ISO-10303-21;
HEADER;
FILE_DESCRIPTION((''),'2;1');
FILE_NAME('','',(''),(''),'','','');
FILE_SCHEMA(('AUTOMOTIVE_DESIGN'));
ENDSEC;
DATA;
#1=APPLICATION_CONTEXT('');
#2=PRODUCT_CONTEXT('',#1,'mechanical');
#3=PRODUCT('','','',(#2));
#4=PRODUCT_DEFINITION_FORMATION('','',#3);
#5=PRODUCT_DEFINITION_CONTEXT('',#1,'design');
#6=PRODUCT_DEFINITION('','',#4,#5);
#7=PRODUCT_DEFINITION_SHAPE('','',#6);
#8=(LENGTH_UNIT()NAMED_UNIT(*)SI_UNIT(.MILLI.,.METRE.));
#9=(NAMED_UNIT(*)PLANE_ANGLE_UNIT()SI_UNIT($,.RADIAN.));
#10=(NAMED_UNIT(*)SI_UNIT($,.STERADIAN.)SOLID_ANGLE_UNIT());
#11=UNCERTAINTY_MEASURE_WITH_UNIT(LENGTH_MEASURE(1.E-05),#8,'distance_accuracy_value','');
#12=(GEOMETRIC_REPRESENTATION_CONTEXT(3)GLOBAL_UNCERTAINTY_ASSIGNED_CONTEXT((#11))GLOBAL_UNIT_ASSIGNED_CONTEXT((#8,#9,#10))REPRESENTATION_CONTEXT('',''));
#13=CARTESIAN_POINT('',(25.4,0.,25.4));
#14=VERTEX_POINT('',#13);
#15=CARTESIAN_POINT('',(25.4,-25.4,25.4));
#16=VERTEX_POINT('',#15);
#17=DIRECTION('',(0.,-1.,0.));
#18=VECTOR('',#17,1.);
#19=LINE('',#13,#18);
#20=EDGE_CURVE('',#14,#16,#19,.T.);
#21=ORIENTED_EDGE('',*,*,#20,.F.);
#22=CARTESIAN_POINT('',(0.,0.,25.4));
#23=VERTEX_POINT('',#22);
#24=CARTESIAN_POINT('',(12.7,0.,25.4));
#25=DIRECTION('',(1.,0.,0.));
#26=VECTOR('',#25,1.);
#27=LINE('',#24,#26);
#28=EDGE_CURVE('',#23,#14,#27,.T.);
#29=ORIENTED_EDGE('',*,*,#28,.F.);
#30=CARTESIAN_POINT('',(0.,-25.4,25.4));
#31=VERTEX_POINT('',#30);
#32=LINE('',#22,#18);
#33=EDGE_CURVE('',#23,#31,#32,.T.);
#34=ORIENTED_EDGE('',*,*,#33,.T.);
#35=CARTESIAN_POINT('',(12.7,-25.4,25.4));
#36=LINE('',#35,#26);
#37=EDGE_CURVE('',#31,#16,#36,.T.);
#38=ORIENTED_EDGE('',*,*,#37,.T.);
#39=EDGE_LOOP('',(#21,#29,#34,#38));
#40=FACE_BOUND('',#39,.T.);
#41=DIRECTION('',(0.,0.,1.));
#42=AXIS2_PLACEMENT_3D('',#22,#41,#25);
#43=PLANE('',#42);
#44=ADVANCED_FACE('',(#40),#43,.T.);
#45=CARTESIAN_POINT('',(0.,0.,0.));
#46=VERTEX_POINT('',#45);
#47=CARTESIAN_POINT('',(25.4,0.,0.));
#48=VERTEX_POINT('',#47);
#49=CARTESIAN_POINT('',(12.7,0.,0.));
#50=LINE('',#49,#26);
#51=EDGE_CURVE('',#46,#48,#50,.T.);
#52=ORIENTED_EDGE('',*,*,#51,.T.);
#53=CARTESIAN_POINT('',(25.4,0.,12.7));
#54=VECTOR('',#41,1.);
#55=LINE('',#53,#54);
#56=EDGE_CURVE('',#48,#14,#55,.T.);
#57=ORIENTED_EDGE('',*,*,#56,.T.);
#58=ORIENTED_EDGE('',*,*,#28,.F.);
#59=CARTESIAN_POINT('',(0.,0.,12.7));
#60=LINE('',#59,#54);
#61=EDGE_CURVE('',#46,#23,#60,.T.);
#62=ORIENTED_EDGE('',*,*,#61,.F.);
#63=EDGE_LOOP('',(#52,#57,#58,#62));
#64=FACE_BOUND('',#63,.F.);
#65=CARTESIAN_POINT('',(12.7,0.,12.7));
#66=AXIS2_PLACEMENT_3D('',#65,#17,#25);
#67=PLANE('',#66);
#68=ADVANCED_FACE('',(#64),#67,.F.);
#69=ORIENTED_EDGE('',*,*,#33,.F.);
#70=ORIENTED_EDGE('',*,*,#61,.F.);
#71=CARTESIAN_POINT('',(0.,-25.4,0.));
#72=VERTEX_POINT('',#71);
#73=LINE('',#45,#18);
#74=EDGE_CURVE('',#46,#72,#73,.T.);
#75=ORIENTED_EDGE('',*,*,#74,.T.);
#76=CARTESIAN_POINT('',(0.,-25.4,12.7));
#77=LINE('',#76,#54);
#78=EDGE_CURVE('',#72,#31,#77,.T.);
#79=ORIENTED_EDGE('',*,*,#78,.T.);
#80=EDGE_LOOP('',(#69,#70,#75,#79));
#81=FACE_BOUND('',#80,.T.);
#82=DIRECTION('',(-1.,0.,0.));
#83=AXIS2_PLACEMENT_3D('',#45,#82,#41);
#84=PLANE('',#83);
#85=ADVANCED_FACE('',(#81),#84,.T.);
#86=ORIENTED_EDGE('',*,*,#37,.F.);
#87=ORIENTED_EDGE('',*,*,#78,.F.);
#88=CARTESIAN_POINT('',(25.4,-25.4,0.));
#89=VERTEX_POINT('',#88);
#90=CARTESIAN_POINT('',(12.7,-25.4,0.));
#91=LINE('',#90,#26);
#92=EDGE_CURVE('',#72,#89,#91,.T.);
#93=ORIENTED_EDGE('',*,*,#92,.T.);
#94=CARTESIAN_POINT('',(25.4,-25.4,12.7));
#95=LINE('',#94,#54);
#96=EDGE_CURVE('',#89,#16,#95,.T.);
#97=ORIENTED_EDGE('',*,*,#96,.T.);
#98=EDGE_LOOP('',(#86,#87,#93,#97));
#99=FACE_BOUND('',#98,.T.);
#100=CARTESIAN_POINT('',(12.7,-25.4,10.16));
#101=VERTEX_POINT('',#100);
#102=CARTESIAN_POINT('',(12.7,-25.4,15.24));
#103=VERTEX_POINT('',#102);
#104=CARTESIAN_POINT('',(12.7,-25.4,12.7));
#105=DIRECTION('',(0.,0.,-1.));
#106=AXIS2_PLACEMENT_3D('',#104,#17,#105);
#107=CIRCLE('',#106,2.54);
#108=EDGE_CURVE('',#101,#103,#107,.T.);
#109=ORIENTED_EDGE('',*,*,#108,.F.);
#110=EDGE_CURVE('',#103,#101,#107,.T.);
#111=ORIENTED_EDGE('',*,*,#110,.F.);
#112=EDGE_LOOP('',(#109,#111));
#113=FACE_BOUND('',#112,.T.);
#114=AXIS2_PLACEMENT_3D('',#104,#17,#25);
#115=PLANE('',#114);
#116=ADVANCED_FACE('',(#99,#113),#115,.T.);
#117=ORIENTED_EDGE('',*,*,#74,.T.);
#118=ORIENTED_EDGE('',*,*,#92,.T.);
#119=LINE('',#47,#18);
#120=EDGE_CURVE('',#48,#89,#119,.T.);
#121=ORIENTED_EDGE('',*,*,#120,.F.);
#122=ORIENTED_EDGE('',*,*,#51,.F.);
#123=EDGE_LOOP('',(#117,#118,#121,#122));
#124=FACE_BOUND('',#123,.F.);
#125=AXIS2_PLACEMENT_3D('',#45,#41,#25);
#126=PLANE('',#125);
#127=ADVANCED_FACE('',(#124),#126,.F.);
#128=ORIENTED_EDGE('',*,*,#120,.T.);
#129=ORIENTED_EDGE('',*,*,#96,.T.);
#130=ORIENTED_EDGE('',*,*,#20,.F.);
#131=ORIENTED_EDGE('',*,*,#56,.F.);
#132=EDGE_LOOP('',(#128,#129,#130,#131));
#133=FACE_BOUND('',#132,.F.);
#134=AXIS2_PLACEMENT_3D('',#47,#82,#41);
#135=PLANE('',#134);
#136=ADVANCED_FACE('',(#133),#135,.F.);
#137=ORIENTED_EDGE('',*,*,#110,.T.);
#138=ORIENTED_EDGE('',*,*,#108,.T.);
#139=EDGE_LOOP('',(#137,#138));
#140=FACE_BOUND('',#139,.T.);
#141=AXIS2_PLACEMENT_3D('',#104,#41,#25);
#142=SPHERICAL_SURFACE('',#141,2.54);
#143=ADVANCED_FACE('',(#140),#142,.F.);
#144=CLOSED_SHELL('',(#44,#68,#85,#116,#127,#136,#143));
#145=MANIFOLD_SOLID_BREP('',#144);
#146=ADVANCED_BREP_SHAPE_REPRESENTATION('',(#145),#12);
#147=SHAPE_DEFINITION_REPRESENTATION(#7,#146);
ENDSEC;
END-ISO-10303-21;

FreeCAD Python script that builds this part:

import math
import FreeCAD as App
import Part
import Sketcher
Q = App.Units.Quantity


def add_polygon(sketch, points):
    """Adds a closed chain of lines whose ends are joined by coincident constraints."""
    first, n = sketch.GeometryCount, len(points)
    for a, b in zip(points, points[1:] + points[:1]):
        sketch.addGeometry(Part.LineSegment(App.Vector(*a, 0), App.Vector(*b, 0)), False)
    for i in range(n):
        sketch.addConstraint(Sketcher.Constraint("Coincident", first + i, 2, first + (i + 1) % n, 1))

doc = App.newDocument("Part")
body = doc.addObject("PartDesign::Body", "Body")

# Sketch on XZ plane
sketch1 = doc.addObject("Sketcher::SketchObject", "Sketch")
body.addObject(sketch1)
sketch1.AttachmentSupport = (doc.XZ_Plane, [""])
sketch1.MapMode = "FlatFace"
add_polygon(sketch1, [(0, 25), (0, 0), (25, 0), (25, 25)])  # lines 0-3
sketch1.addConstraint([
    Sketcher.Constraint("Vertical", 0),
    Sketcher.Constraint("Horizontal", 1),
    Sketcher.Constraint("Vertical", 2),
    Sketcher.Constraint("Horizontal", 3),
    Sketcher.Constraint("Coincident", 0, 2, -1, 1),
    Sketcher.Constraint("Equal", 3, 0),
    Sketcher.Constraint("DistanceX", 1, 1, 1, 2, Q("1 in")),
])
pad1 = doc.addObject("PartDesign::Pad", "Pad")
body.addObject(pad1)
pad1.Profile = sketch1
pad1.Length = Q("1 in")

# Sketch on XZ plane
sketch2 = doc.addObject("Sketcher::SketchObject", "Sketch001")
body.addObject(sketch2)
sketch2.AttachmentSupport = (doc.XZ_Plane, [""])
sketch2.MapMode = "FlatFace"
sketch2.AttachmentOffset = App.Placement(App.Vector(0, 0, 1 * 25.4), App.Rotation())
sketch2.addGeometry([
    Part.ArcOfCircle(Part.Circle(App.Vector(12.7, 12.7, 0), App.Vector(0, 0, 1), 2.5), math.radians(-90), math.radians(90)),
    Part.LineSegment(App.Vector(12.7, 15.2, 0), App.Vector(12.7, 10.2, 0)),
], False)
sketch2.addGeometry(Part.LineSegment(App.Vector(12.7, 15.2, 0), App.Vector(12.7, 10.2, 0)), True)  # axis
sketch2.addConstraint([
    Sketcher.Constraint("Coincident", 0, 1, 1, 2),
    Sketcher.Constraint("Coincident", 1, 1, 0, 2),
    Sketcher.Constraint("Vertical", 1),
    Sketcher.Constraint("Vertical", 2),
    Sketcher.Constraint("Coincident", 2, 1, 1, 1),
    Sketcher.Constraint("Equal", 1, 2),
    Sketcher.Constraint("Radius", 0, Q("0.1 in")),
    Sketcher.Constraint("DistanceX", -1, 1, 0, 3, Q("0.5 in")),
    Sketcher.Constraint("DistanceY", -1, 1, 0, 3, Q("0.5 in")),
    Sketcher.Constraint("DistanceX", -1, 1, 0, 1, Q("0.5 in")),
])
groove = doc.addObject("PartDesign::Groove", "Groove")
body.addObject(groove)
groove.Profile = sketch2
groove.ReferenceAxis = (sketch2, ["Axis0"])
groove.Angle = 360

doc.recompute()
